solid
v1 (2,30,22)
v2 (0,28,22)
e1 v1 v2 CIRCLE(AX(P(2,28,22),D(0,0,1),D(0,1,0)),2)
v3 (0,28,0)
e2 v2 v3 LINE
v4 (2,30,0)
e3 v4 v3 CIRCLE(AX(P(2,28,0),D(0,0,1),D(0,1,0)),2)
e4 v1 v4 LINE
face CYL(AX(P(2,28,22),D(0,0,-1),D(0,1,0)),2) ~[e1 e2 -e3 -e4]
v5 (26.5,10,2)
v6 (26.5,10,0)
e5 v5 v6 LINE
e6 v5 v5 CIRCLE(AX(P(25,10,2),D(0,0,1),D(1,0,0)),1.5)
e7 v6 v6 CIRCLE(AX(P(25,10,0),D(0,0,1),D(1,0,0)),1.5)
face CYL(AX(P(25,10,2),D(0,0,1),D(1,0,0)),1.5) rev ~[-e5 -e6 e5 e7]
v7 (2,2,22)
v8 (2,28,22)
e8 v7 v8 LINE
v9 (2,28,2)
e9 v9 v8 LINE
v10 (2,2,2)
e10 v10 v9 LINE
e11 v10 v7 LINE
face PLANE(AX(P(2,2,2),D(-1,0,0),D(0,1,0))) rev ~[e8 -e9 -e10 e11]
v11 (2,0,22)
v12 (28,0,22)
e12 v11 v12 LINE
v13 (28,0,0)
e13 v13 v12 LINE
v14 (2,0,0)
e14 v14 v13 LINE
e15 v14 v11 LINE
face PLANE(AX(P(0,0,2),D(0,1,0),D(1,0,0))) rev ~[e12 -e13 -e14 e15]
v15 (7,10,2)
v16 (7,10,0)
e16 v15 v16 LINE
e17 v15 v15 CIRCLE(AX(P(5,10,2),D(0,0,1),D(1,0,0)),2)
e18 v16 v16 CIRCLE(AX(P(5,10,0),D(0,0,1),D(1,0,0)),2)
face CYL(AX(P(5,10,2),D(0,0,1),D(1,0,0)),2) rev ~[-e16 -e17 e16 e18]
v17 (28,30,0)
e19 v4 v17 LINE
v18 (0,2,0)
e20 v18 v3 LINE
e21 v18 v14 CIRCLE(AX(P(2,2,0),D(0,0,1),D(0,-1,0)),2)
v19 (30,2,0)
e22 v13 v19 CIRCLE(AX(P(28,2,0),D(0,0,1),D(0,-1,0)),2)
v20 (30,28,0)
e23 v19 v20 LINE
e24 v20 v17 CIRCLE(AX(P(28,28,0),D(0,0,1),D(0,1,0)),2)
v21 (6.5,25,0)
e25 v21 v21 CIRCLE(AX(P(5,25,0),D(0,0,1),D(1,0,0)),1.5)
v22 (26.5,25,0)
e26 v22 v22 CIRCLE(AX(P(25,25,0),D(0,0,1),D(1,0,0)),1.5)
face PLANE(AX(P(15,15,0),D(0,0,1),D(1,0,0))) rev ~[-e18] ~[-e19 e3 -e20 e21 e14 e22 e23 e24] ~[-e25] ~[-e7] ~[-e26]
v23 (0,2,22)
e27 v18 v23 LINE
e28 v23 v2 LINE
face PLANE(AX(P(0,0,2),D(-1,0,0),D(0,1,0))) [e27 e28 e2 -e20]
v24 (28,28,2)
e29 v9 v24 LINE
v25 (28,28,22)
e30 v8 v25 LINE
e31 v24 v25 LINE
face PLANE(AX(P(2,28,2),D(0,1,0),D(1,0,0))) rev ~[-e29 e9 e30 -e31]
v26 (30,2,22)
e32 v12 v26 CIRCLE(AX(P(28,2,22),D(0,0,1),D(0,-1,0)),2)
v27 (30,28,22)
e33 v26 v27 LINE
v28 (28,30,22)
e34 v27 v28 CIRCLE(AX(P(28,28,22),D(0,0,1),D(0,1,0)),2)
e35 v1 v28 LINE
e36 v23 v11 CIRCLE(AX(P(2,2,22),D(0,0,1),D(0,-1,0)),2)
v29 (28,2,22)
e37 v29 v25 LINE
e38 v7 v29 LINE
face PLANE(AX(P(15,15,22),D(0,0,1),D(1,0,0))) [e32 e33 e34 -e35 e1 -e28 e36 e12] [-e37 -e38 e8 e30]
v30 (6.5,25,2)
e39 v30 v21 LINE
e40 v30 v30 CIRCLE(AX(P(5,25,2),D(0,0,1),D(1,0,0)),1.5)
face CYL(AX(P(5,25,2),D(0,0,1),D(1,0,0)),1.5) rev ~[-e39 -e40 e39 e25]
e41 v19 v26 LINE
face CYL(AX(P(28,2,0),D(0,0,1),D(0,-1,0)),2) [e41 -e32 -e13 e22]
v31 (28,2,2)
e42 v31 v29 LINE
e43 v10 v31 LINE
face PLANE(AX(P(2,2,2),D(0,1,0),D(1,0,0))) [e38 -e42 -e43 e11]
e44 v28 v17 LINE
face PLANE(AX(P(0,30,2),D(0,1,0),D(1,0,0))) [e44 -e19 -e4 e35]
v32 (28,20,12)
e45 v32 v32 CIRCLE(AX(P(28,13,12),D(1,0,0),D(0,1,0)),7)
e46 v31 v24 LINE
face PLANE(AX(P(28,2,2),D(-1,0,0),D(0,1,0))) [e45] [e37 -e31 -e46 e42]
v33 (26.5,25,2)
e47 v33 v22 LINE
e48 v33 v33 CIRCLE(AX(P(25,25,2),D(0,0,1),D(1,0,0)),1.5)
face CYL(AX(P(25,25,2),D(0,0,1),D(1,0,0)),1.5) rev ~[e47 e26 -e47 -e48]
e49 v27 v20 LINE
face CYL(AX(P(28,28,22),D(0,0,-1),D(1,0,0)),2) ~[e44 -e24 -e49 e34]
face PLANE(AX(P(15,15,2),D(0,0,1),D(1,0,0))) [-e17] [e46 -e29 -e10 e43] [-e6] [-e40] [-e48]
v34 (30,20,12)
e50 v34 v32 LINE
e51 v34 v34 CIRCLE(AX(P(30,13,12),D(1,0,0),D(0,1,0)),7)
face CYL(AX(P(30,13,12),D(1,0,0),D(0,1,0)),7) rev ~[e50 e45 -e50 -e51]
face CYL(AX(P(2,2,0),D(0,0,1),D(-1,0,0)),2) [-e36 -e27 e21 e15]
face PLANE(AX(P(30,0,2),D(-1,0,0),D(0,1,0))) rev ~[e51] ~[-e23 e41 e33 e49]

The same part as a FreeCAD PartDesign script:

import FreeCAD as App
import Part
import Sketcher

V = App.Vector


def edges_at(feature, points):
    """Names of the edges that pass closest to the given points."""
    edges = feature.Shape.Edges
    near = lambda p: min(range(len(edges)), key=lambda i: edges[i].distToShape(Part.Vertex(*p))[0])
    return sorted({f"Edge{near(p) + 1}" for p in points})

doc = App.newDocument("Part")
body = doc.addObject("PartDesign::Body", "Body")

# Sketch on XY plane
sketch1 = doc.addObject("Sketcher::SketchObject", "Sketch")
body.addObject(sketch1)
sketch1.AttachmentSupport = (doc.XY_Plane, [""])
sketch1.MapMode = "FlatFace"
sketch1.addGeometry(Part.LineSegment(V(0, 30, 0), V(0, 0, 0)), False)
sketch1.addGeometry(Part.LineSegment(V(0, 0, 0), V(30, 0, 0)), False)
sketch1.addGeometry(Part.LineSegment(V(30, 0, 0), V(30, 30, 0)), False)
sketch1.addGeometry(Part.LineSegment(V(30, 30, 0), V(0, 30, 0)), False)
sketch1.addConstraint(Sketcher.Constraint("Coincident", 0, 2, 1, 1))
sketch1.addConstraint(Sketcher.Constraint("Coincident", 1, 2, 2, 1))
sketch1.addConstraint(Sketcher.Constraint("Coincident", 2, 2, 3, 1))
sketch1.addConstraint(Sketcher.Constraint("Coincident", 3, 2, 0, 1))
sketch1.addConstraint(Sketcher.Constraint("Vertical", 0))
sketch1.addConstraint(Sketcher.Constraint("Horizontal", 1))
sketch1.addConstraint(Sketcher.Constraint("Vertical", 2))
sketch1.addConstraint(Sketcher.Constraint("Horizontal", 3))
sketch1.addConstraint(Sketcher.Constraint("Coincident", 0, 2, -1, 1))
sketch1.addConstraint(Sketcher.Constraint("Equal", 3, 0))
sketch1.addConstraint(Sketcher.Constraint("DistanceX", 1, 1, 1, 2, 30.0))
pad1 = doc.addObject("PartDesign::Pad", "Pad")
body.addObject(pad1)
pad1.Profile = sketch1
pad1.Length = 2

# Sketch on XY plane
sketch2 = doc.addObject("Sketcher::SketchObject", "Sketch001")
body.addObject(sketch2)
sketch2.AttachmentSupport = (doc.XY_Plane, [""])
sketch2.MapMode = "FlatFace"
sketch2.AttachmentOffset = App.Placement(V(0, 0, 2), App.Rotation())
sketch2.addGeometry(Part.Circle(V(5, 25, 0), V(0, 0, 1), 1.5), False)
sketch2.addGeometry(Part.Circle(V(25, 25, 0), V(0, 0, 1), 1.5), False)
sketch2.addGeometry(Part.Circle(V(25, 10, 0), V(0, 0, 1), 1.5), False)
sketch2.addGeometry(Part.Circle(V(5, 10, 0), V(0, 0, 1), 2), False)
sketch2.addConstraint(Sketcher.Constraint("Equal", 0, 1))
sketch2.addConstraint(Sketcher.Constraint("Equal", 1, 2))
sketch2.addConstraint(Sketcher.Constraint("Horizontal", 0, 3, 1, 3))
sketch2.addConstraint(Sketcher.Constraint("Horizontal", 2, 3, 3, 3))
sketch2.addConstraint(Sketcher.Constraint("Vertical", 1, 3, 2, 3))
sketch2.addConstraint(Sketcher.Constraint("Vertical", 0, 3, 3, 3))
sketch2.addConstraint(Sketcher.Constraint("Diameter", 0, 3.0))
sketch2.addConstraint(Sketcher.Constraint("Diameter", 3, 4.0))
sketch2.addConstraint(Sketcher.Constraint("DistanceX", -1, 1, 0, 3, 5.0))
sketch2.addConstraint(Sketcher.Constraint("DistanceY", -1, 1, 0, 3, 25.0))
sketch2.addConstraint(Sketcher.Constraint("DistanceX", -1, 1, 1, 3, 25.0))
sketch2.addConstraint(Sketcher.Constraint("DistanceY", -1, 1, 2, 3, 10.0))
pocket1 = doc.addObject("PartDesign::Pocket", "Pocket")
body.addObject(pocket1)
pocket1.Profile = sketch2
pocket1.Length = 5

# Sketch on XY plane
sketch3 = doc.addObject("Sketcher::SketchObject", "Sketch002")
body.addObject(sketch3)
sketch3.AttachmentSupport = (doc.XY_Plane, [""])
sketch3.MapMode = "FlatFace"
sketch3.AttachmentOffset = App.Placement(V(0, 0, 2), App.Rotation())
sketch3.addGeometry(Part.LineSegment(V(0, 30, 0), V(0, 0, 0)), False)
sketch3.addGeometry(Part.LineSegment(V(0, 0, 0), V(30, 0, 0)), False)
sketch3.addGeometry(Part.LineSegment(V(30, 0, 0), V(30, 30, 0)), False)
sketch3.addGeometry(Part.LineSegment(V(30, 30, 0), V(0, 30, 0)), False)
sketch3.addGeometry(Part.LineSegment(V(28, 2, 0), V(2, 2, 0)), False)
sketch3.addGeometry(Part.LineSegment(V(2, 2, 0), V(2, 28, 0)), False)
sketch3.addGeometry(Part.LineSegment(V(2, 28, 0), V(28, 28, 0)), False)
sketch3.addGeometry(Part.LineSegment(V(28, 28, 0), V(28, 2, 0)), False)
sketch3.addConstraint(Sketcher.Constraint("Coincident", 0, 2, 1, 1))
sketch3.addConstraint(Sketcher.Constraint("Coincident", 1, 2, 2, 1))
sketch3.addConstraint(Sketcher.Constraint("Coincident", 2, 2, 3, 1))
sketch3.addConstraint(Sketcher.Constraint("Coincident", 3, 2, 0, 1))
sketch3.addConstraint(Sketcher.Constraint("Coincident", 4, 2, 5, 1))
sketch3.addConstraint(Sketcher.Constraint("Coincident", 5, 2, 6, 1))
sketch3.addConstraint(Sketcher.Constraint("Coincident", 6, 2, 7, 1))
sketch3.addConstraint(Sketcher.Constraint("Coincident", 7, 2, 4, 1))
sketch3.addConstraint(Sketcher.Constraint("Vertical", 0))
sketch3.addConstraint(Sketcher.Constraint("Horizontal", 1))
sketch3.addConstraint(Sketcher.Constraint("Vertical", 2))
sketch3.addConstraint(Sketcher.Constraint("Horizontal", 3))
sketch3.addConstraint(Sketcher.Constraint("Horizontal", 4))
sketch3.addConstraint(Sketcher.Constraint("Vertical", 5))
sketch3.addConstraint(Sketcher.Constraint("Horizontal", 6))
sketch3.addConstraint(Sketcher.Constraint("Vertical", 7))
sketch3.addConstraint(Sketcher.Constraint("Coincident", 0, 2, -1, 1))
sketch3.addConstraint(Sketcher.Constraint("Equal", 3, 0))
sketch3.addConstraint(Sketcher.Constraint("Equal", 6, 5))
sketch3.addConstraint(Sketcher.Constraint("DistanceX", 1, 1, 1, 2, 30.0))
sketch3.addConstraint(Sketcher.Constraint("DistanceX", 4, 2, 4, 1, 26.0))
sketch3.addConstraint(Sketcher.Constraint("DistanceX", -1, 1, 4, 2, 2.0))
sketch3.addConstraint(Sketcher.Constraint("DistanceY", -1, 1, 4, 2, 2.0))
pad2 = doc.addObject("PartDesign::Pad", "Pad001")
body.addObject(pad2)
pad2.Profile = sketch3
pad2.Length = 20

# Sketch on YZ plane
sketch4 = doc.addObject("Sketcher::SketchObject", "Sketch003")
body.addObject(sketch4)
sketch4.AttachmentSupport = (doc.YZ_Plane, [""])
sketch4.MapMode = "FlatFace"
sketch4.AttachmentOffset = App.Placement(V(0, 0, 30), App.Rotation())
sketch4.addGeometry(Part.Circle(V(13, 12, 0), V(0, 0, 1), 7), False)
sketch4.addConstraint(Sketcher.Constraint("Diameter", 0, 14.0))
sketch4.addConstraint(Sketcher.Constraint("DistanceX", -1, 1, 0, 3, 13.0))
sketch4.addConstraint(Sketcher.Constraint("DistanceY", -1, 1, 0, 3, 12.0))
pocket2 = doc.addObject("PartDesign::Pocket", "Pocket001")
body.addObject(pocket2)
pocket2.Profile = sketch4
pocket2.Length = 5
doc.recompute()

fillet = doc.addObject("PartDesign::Fillet", "Fillet")
body.addObject(fillet)
fillet.Base = (pocket2, edges_at(pocket2, [(30, 0, 11)]))
fillet.Radius = 2
doc.recompute()

fillet2 = doc.addObject("PartDesign::Fillet", "Fillet001")
body.addObject(fillet2)
fillet2.Base = (fillet, edges_at(fillet, [(30, 30, 11)]))
fillet2.Radius = 2
doc.recompute()

fillet3 = doc.addObject("PartDesign::Fillet", "Fillet002")
body.addObject(fillet3)
fillet3.Base = (fillet2, edges_at(fillet2, [(0, 30, 11)]))
fillet3.Radius = 2
doc.recompute()

fillet4 = doc.addObject("PartDesign::Fillet", "Fillet003")
body.addObject(fillet4)
fillet4.Base = (fillet3, edges_at(fillet3, [(0, 0, 11)]))
fillet4.Radius = 2

doc.recompute()
